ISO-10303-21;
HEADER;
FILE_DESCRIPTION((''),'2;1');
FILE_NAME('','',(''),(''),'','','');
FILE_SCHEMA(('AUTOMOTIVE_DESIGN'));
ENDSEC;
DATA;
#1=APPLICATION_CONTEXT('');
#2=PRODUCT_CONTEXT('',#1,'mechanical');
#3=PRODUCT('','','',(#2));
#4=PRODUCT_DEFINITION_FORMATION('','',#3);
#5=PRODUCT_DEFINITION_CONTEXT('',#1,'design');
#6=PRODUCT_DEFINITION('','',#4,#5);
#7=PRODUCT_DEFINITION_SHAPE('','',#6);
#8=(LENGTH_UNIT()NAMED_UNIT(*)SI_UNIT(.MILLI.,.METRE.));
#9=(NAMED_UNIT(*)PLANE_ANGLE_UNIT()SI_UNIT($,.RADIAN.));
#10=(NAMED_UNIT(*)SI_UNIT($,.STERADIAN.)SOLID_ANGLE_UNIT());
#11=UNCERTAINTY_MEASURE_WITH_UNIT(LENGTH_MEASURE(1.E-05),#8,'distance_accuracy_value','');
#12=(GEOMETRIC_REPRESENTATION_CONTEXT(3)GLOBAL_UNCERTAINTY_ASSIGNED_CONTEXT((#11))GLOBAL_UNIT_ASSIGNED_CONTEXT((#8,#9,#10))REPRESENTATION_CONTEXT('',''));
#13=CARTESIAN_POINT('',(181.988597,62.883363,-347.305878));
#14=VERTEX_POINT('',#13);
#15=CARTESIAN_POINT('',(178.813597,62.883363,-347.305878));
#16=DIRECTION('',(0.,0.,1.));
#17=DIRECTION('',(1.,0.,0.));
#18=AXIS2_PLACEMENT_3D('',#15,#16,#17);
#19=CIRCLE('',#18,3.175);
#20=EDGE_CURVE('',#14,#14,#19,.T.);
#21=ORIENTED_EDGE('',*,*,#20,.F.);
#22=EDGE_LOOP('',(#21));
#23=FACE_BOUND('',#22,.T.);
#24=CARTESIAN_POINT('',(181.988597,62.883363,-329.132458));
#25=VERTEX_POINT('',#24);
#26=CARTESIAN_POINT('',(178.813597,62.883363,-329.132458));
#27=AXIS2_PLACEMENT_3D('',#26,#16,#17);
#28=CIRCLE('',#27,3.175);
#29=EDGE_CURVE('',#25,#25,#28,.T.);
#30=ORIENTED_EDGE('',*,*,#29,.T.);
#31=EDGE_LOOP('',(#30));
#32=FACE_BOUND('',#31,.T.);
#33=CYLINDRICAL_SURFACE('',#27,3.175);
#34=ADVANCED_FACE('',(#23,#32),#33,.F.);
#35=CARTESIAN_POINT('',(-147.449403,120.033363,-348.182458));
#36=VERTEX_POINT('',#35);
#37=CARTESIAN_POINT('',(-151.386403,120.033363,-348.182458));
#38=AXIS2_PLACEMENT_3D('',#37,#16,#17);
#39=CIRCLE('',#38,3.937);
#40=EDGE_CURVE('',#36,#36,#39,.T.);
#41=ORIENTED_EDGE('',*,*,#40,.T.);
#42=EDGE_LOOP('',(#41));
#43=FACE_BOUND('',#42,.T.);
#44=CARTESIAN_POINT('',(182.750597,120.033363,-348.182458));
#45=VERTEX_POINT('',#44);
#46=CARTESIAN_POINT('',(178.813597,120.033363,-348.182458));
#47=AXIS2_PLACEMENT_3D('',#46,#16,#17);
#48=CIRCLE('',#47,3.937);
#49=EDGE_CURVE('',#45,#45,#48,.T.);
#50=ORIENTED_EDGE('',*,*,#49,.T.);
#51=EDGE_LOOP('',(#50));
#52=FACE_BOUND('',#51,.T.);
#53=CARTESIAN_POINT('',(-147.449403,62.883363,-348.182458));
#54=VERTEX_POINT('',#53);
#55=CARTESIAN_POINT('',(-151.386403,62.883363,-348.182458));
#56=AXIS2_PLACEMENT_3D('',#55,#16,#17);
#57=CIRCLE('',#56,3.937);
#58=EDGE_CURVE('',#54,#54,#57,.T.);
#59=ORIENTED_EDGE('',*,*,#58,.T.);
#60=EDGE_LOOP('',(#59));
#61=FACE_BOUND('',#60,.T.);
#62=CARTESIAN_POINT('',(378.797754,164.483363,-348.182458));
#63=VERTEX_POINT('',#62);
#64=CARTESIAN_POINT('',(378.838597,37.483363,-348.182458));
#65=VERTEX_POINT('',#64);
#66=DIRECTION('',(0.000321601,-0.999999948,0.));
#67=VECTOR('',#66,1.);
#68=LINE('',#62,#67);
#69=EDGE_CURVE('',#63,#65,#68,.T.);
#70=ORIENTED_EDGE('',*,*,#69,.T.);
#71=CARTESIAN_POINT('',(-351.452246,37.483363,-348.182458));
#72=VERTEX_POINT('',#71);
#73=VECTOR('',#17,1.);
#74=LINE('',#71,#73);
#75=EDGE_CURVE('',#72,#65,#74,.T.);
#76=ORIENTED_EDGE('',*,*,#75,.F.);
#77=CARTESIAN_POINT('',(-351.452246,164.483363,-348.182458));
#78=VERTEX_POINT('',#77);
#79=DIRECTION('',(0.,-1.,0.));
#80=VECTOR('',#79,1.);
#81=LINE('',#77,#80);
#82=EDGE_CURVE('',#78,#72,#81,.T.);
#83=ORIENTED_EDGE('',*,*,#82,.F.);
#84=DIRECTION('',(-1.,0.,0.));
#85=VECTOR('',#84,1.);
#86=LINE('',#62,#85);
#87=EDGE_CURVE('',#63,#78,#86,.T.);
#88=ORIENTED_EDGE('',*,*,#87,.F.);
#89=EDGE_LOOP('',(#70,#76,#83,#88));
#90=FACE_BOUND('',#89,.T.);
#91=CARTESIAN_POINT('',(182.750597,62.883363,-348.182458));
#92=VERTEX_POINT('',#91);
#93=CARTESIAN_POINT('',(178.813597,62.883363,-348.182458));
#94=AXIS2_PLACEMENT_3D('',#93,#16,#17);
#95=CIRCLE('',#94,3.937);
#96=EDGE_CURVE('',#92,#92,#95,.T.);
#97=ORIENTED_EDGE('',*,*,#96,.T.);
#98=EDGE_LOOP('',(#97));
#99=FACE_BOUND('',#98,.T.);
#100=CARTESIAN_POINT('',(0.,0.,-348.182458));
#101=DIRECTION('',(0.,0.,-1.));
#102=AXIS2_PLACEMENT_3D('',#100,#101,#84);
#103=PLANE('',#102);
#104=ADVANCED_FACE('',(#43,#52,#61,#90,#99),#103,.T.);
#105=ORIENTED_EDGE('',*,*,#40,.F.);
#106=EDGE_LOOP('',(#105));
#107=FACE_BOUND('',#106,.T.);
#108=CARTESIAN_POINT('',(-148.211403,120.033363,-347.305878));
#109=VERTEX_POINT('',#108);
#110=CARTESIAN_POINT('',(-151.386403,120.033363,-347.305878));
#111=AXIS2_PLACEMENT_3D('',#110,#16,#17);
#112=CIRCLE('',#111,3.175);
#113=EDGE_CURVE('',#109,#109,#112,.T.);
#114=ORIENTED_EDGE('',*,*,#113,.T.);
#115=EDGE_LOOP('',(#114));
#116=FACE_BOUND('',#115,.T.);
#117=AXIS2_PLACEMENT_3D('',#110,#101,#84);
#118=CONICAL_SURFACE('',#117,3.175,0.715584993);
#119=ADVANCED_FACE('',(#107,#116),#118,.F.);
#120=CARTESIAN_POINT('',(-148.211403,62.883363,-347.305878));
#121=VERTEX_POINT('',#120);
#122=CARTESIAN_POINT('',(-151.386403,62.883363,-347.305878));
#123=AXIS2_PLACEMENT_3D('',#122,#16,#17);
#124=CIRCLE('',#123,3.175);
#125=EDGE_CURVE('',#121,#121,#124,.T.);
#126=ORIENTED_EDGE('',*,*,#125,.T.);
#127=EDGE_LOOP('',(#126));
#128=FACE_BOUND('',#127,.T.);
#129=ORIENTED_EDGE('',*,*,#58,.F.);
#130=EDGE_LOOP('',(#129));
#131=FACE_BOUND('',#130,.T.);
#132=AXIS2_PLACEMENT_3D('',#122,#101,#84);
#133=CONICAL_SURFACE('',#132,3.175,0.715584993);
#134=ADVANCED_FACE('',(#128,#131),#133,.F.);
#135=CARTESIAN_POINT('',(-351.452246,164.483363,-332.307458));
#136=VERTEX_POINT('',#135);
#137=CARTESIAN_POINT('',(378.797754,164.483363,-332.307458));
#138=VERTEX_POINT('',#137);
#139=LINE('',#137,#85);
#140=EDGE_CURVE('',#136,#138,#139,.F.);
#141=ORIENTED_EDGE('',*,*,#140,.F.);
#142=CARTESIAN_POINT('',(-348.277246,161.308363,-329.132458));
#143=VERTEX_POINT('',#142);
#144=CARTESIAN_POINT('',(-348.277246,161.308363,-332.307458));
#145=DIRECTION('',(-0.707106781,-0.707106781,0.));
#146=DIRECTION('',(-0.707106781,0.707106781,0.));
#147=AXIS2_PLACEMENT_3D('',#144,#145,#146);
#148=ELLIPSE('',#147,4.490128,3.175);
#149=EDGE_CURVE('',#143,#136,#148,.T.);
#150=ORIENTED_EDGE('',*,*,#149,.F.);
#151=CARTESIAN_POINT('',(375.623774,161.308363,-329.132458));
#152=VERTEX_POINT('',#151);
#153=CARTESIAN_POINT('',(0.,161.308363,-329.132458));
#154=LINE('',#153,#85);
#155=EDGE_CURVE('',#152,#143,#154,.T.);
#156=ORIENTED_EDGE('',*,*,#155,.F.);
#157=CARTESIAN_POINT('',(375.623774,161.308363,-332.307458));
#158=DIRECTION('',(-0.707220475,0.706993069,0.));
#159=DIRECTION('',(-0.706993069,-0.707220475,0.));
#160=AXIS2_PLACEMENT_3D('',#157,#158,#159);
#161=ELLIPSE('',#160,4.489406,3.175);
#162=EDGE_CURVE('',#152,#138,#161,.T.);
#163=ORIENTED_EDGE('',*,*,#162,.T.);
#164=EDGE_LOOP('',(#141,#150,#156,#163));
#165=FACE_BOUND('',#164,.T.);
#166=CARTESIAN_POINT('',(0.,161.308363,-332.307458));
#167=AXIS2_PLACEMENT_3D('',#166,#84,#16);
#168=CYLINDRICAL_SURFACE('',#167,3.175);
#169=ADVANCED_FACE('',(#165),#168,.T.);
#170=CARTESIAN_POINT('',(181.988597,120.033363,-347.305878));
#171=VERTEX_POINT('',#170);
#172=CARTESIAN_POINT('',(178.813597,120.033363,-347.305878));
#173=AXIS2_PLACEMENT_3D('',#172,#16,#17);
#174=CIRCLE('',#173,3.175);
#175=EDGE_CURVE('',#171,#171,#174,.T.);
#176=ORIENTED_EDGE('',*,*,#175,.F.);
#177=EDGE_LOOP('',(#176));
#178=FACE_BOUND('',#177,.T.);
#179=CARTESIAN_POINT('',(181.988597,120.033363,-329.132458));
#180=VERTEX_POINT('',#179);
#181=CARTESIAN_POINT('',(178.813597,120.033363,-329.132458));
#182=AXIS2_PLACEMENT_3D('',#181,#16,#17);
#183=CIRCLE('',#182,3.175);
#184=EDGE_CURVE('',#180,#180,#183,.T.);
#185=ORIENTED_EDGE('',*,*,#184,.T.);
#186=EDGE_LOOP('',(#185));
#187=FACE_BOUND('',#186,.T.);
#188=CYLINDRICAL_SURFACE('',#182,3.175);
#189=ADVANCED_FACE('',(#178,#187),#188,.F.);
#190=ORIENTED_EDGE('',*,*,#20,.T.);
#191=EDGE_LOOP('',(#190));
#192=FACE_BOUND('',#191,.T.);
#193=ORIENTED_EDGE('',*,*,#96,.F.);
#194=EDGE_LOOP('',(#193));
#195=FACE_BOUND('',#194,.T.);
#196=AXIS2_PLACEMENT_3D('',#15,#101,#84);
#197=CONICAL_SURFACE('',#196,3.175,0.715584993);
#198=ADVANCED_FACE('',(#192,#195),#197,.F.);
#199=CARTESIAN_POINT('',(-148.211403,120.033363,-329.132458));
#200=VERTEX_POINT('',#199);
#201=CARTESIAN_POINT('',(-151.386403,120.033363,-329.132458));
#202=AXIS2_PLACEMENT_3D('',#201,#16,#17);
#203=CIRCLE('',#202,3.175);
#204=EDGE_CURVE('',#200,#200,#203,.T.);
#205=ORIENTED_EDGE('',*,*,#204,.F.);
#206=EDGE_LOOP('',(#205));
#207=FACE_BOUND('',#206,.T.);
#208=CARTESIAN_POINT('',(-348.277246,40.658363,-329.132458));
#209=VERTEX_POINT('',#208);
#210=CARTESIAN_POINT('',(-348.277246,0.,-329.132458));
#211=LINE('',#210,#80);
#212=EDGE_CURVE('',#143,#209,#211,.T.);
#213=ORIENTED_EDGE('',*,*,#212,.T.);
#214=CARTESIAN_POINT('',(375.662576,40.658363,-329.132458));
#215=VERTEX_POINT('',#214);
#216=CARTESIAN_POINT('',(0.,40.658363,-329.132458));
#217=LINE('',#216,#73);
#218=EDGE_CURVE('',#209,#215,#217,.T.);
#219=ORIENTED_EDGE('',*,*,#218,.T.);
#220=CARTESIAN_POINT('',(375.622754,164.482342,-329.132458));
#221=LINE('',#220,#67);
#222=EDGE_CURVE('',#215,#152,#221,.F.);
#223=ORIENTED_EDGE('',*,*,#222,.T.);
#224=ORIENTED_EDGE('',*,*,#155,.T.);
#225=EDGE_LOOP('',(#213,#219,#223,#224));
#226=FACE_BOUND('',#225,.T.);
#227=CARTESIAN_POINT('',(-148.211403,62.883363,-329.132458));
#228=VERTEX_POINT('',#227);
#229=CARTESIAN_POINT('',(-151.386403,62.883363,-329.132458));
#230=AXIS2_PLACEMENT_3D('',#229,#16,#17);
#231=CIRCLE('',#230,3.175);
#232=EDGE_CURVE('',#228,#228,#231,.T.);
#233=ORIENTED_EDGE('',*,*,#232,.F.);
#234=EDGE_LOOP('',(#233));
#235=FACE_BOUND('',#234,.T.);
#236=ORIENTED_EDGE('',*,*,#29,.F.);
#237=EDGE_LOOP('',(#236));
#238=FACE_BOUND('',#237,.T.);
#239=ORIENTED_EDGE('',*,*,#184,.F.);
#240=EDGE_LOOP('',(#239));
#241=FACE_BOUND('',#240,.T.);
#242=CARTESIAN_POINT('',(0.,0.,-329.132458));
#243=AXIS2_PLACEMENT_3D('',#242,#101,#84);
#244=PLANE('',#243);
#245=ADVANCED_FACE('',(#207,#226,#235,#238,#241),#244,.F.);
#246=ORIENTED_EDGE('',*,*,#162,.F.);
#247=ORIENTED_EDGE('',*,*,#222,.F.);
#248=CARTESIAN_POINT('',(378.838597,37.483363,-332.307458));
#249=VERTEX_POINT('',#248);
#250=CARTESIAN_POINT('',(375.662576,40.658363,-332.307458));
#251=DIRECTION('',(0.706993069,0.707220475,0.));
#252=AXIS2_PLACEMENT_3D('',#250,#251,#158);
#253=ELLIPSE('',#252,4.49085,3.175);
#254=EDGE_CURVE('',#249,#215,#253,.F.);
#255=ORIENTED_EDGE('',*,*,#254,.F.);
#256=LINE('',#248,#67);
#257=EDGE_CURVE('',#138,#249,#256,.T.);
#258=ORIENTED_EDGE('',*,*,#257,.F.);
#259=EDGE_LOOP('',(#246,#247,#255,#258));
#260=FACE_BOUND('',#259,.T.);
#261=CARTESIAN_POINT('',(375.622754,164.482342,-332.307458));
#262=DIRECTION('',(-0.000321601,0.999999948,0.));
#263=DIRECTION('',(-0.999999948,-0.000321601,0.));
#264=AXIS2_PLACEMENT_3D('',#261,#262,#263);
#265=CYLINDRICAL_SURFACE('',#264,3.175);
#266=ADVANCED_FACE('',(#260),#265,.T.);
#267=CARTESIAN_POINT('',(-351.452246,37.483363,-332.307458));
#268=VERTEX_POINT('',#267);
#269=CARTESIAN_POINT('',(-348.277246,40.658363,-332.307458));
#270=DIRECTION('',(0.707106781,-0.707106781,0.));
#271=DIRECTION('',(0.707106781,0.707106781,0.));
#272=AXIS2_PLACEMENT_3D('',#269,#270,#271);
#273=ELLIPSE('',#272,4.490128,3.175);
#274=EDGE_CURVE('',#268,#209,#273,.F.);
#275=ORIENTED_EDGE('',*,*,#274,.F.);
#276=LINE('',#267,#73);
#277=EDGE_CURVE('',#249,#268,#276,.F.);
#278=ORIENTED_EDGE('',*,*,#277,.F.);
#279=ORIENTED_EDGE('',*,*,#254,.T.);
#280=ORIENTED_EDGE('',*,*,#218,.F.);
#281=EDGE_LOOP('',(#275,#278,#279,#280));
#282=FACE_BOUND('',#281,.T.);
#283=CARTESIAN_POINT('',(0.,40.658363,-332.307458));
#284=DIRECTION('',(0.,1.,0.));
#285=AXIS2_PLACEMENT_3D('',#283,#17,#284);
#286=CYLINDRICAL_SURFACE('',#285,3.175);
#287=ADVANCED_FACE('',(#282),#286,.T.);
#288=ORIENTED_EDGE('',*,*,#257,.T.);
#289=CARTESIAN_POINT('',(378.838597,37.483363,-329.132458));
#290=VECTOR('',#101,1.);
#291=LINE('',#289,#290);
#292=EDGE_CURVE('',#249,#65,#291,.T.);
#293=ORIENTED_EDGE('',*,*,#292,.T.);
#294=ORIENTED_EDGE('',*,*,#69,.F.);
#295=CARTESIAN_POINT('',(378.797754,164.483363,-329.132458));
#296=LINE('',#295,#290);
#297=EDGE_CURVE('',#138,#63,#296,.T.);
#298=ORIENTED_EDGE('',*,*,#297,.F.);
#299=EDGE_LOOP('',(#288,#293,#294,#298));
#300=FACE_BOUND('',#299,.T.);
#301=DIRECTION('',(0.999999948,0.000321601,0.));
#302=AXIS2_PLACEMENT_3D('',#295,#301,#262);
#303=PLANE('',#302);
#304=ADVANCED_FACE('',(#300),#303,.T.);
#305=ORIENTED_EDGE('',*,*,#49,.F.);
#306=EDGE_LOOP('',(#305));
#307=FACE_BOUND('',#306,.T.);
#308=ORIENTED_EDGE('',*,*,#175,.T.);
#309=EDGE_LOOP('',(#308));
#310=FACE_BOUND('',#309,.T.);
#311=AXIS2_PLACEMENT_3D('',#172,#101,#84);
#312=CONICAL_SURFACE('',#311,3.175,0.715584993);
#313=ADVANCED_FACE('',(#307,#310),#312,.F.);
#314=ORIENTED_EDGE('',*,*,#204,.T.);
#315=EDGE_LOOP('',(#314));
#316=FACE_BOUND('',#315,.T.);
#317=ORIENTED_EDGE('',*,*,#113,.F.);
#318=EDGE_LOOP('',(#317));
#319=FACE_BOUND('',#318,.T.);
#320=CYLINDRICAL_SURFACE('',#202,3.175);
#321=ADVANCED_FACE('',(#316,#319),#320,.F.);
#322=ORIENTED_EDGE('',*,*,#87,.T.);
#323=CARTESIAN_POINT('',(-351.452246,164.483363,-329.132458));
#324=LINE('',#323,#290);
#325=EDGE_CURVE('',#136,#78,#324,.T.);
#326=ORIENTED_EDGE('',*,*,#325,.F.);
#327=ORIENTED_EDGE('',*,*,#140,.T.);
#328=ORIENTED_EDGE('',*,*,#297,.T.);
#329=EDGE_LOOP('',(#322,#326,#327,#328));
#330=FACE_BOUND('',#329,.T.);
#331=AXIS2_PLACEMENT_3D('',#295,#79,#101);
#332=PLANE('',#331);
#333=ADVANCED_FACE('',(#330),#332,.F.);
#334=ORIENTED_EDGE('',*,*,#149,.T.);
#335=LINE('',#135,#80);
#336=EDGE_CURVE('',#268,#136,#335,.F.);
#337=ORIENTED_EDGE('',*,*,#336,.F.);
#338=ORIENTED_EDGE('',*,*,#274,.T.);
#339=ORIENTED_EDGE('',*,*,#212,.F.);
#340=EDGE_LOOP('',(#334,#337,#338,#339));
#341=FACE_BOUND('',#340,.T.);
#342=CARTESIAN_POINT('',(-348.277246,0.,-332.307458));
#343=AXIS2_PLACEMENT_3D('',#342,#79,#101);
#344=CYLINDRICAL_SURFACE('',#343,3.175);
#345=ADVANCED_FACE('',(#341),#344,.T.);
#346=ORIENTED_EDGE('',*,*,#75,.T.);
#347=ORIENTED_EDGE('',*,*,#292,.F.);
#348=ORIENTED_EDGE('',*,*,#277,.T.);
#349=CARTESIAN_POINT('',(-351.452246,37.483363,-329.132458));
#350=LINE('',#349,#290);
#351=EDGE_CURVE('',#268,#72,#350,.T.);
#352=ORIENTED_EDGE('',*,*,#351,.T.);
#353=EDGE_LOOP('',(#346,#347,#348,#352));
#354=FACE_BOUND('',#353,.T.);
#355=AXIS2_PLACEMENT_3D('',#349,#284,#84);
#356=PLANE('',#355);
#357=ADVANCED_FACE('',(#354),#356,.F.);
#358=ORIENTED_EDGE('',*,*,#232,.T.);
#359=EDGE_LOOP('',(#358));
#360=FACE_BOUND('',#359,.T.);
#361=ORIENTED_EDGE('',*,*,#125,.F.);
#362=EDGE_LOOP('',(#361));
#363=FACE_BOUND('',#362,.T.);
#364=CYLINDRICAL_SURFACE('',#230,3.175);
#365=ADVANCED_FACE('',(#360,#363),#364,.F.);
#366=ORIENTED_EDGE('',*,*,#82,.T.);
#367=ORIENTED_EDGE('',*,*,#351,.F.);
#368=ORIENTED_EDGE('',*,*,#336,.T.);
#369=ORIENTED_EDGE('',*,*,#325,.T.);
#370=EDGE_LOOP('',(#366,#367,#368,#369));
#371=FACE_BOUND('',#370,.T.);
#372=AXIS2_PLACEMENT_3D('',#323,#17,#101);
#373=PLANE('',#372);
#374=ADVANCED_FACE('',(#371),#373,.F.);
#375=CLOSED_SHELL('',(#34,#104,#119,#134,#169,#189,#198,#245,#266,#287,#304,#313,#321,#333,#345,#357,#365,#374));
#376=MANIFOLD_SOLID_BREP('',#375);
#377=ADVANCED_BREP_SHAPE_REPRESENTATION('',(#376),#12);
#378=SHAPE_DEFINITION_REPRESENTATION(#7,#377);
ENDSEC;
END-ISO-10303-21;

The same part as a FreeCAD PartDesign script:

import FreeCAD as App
import Part
import Sketcher

V = App.Vector
Q = App.Units.Quantity


def edges_at(feature, points):
    """Names of the edges that pass closest to the given points."""
    edges = feature.Shape.Edges
    near = lambda p: min(range(len(edges)), key=lambda i: edges[i].distToShape(Part.Vertex(*p))[0])
    return sorted({f"Edge{near(p) + 1}" for p in points})

doc = App.newDocument("Part")
body = doc.addObject("PartDesign::Body", "Body")

sketch1 = body.newObject("Sketcher::SketchObject", "Sketch")
sketch1.AttachmentSupport = (doc.getObject("XY_Plane"), [""])
sketch1.MapMode = "FlatFace"
sketch1.AttachmentOffset = App.Placement(V(0, 0, -348.182458), App.Rotation())
sketch1.addGeometry([
    Part.LineSegment(V(379, 164, 0), V(-351, 164, 0)),
    Part.LineSegment(V(-351, 164, 0), V(-351, 37, 0)),
    Part.LineSegment(V(-351, 37, 0), V(379, 37, 0)),
    Part.LineSegment(V(379, 37, 0), V(379, 164, 0)),
], False)
sketch1.addConstraint([
    Sketcher.Constraint("Coincident", 0, 2, 1, 1),
    Sketcher.Constraint("Coincident", 1, 2, 2, 1),
    Sketcher.Constraint("Coincident", 2, 2, 3, 1),
    Sketcher.Constraint("Coincident", 3, 2, 0, 1),
    Sketcher.Constraint("Horizontal", 0),
    Sketcher.Constraint("Vertical", 1),
    Sketcher.Constraint("Horizontal", 2),
    Sketcher.Constraint("DistanceY", 1, 2, 1, 1, Q("5 in")),
    Sketcher.Constraint("DistanceX", 0, 2, 0, 1, Q("28.75 in")),
    Sketcher.Constraint("DistanceX", 2, 1, 2, 2, 730.290843),
    Sketcher.Constraint("DistanceX", 0, 2, -1, 1, 351.452246),
    Sketcher.Constraint("DistanceY", -1, 1, 0, 2, 164.483363),
])
pad1 = body.newObject("PartDesign::Pad", "Pad")
pad1.Profile = sketch1
pad1.Length = Q("0.75 in")

sketch2 = body.newObject("Sketcher::SketchObject", "Sketch001")
sketch2.AttachmentSupport = (doc.getObject("YZ_Plane"), [""])
sketch2.MapMode = "FlatFace"
sketch2.AttachmentOffset = App.Placement(V(0, 0, -151.386403), App.Rotation())
sketch2.addGeometry([
    Part.LineSegment(V(120, -348.2, 0), V(120, -329.1, 0)),
    Part.LineSegment(V(120, -329.1, 0), V(116.9, -329.1, 0)),
    Part.LineSegment(V(116.9, -329.1, 0), V(116.9, -347.3, 0)),
    Part.LineSegment(V(116.9, -347.3, 0), V(116.1, -348.2, 0)),
    Part.LineSegment(V(116.1, -348.2, 0), V(120, -348.2, 0)),
], False)
sketch2.addGeometry(Part.LineSegment(V(120, -329.1, 0), V(120, -348.2, 0)), True)
sketch2.addConstraint([
    Sketcher.Constraint("Coincident", 0, 2, 1, 1),
    Sketcher.Constraint("Coincident", 1, 2, 2, 1),
    Sketcher.Constraint("Coincident", 2, 2, 3, 1),
    Sketcher.Constraint("Coincident", 3, 2, 4, 1),
    Sketcher.Constraint("Coincident", 4, 2, 0, 1),
    Sketcher.Constraint("Vertical", 0),
    Sketcher.Constraint("Horizontal", 1),
    Sketcher.Constraint("Vertical", 2),
    Sketcher.Constraint("Horizontal", 4),
    Sketcher.Constraint("Vertical", 5),
    Sketcher.Constraint("Coincident", 5, 1, 0, 2),
    Sketcher.Constraint("Horizontal", 3, 2, 5, 2),
    Sketcher.Constraint("Angle", 3, Q("-131 deg")),
    Sketcher.Constraint("DistanceY", 0, 1, 0, 2, Q("0.75 in")),
    Sketcher.Constraint("DistanceX", 1, 2, 1, 1, Q("0.125 in")),
    Sketcher.Constraint("DistanceX", 4, 1, 4, 2, Q("0.155 in")),
    Sketcher.Constraint("DistanceY", 0, 2, -1, 1, 329.132458),
    Sketcher.Constraint("DistanceX", -1, 1, 0, 2, 120.033363),
])
groove = body.newObject("PartDesign::Groove", "Groove")
groove.Profile = sketch2
groove.ReferenceAxis = (sketch2, ["Axis0"])
groove.Angle = 360
doc.recompute()

linearpattern = body.newObject("PartDesign::LinearPattern", "LinearPattern")
linearpattern.Originals = [groove]
linearpattern.Direction = (doc.getObject("Y_Axis"), [""])
linearpattern.Mode = "offset"
linearpattern.Offset = Q("2.25 in")
linearpattern.Occurrences = 2
linearpattern.Reversed = True
body.Tip = linearpattern
doc.recompute()

datumline = body.newObject("PartDesign::Line", "DatumLine")
datumline.Placement = App.Placement(V(0, 0, 0), App.Rotation(V(0, 0, 1), V(0.985350506, -0.170541434, 0)))
linearpattern2 = body.newObject("PartDesign::LinearPattern", "LinearPattern001")
linearpattern2.Originals = [groove]
linearpattern2.Direction = (datumline, [""])
linearpattern2.Mode = "offset"
linearpattern2.Offset = 335.10918
linearpattern2.Occurrences = 2
body.Tip = linearpattern2
doc.recompute()

linearpattern3 = body.newObject("PartDesign::LinearPattern", "LinearPattern002")
linearpattern3.Originals = [groove]
linearpattern3.Direction = (doc.getObject("X_Axis"), [""])
linearpattern3.Mode = "offset"
linearpattern3.Offset = Q("13 in")
linearpattern3.Occurrences = 2
body.Tip = linearpattern3
doc.recompute()

fillet = body.newObject("PartDesign::Fillet", "Fillet")
fillet.Base = (linearpattern3, edges_at(linearpattern3, [
    (13.673, 164.483, -329.132),
    (-351.452, 100.983, -329.132),
    (13.693, 37.483, -329.132),
    (378.818, 100.983, -329.132),
]))
fillet.Radius = Q("0.125 in")

doc.recompute()
